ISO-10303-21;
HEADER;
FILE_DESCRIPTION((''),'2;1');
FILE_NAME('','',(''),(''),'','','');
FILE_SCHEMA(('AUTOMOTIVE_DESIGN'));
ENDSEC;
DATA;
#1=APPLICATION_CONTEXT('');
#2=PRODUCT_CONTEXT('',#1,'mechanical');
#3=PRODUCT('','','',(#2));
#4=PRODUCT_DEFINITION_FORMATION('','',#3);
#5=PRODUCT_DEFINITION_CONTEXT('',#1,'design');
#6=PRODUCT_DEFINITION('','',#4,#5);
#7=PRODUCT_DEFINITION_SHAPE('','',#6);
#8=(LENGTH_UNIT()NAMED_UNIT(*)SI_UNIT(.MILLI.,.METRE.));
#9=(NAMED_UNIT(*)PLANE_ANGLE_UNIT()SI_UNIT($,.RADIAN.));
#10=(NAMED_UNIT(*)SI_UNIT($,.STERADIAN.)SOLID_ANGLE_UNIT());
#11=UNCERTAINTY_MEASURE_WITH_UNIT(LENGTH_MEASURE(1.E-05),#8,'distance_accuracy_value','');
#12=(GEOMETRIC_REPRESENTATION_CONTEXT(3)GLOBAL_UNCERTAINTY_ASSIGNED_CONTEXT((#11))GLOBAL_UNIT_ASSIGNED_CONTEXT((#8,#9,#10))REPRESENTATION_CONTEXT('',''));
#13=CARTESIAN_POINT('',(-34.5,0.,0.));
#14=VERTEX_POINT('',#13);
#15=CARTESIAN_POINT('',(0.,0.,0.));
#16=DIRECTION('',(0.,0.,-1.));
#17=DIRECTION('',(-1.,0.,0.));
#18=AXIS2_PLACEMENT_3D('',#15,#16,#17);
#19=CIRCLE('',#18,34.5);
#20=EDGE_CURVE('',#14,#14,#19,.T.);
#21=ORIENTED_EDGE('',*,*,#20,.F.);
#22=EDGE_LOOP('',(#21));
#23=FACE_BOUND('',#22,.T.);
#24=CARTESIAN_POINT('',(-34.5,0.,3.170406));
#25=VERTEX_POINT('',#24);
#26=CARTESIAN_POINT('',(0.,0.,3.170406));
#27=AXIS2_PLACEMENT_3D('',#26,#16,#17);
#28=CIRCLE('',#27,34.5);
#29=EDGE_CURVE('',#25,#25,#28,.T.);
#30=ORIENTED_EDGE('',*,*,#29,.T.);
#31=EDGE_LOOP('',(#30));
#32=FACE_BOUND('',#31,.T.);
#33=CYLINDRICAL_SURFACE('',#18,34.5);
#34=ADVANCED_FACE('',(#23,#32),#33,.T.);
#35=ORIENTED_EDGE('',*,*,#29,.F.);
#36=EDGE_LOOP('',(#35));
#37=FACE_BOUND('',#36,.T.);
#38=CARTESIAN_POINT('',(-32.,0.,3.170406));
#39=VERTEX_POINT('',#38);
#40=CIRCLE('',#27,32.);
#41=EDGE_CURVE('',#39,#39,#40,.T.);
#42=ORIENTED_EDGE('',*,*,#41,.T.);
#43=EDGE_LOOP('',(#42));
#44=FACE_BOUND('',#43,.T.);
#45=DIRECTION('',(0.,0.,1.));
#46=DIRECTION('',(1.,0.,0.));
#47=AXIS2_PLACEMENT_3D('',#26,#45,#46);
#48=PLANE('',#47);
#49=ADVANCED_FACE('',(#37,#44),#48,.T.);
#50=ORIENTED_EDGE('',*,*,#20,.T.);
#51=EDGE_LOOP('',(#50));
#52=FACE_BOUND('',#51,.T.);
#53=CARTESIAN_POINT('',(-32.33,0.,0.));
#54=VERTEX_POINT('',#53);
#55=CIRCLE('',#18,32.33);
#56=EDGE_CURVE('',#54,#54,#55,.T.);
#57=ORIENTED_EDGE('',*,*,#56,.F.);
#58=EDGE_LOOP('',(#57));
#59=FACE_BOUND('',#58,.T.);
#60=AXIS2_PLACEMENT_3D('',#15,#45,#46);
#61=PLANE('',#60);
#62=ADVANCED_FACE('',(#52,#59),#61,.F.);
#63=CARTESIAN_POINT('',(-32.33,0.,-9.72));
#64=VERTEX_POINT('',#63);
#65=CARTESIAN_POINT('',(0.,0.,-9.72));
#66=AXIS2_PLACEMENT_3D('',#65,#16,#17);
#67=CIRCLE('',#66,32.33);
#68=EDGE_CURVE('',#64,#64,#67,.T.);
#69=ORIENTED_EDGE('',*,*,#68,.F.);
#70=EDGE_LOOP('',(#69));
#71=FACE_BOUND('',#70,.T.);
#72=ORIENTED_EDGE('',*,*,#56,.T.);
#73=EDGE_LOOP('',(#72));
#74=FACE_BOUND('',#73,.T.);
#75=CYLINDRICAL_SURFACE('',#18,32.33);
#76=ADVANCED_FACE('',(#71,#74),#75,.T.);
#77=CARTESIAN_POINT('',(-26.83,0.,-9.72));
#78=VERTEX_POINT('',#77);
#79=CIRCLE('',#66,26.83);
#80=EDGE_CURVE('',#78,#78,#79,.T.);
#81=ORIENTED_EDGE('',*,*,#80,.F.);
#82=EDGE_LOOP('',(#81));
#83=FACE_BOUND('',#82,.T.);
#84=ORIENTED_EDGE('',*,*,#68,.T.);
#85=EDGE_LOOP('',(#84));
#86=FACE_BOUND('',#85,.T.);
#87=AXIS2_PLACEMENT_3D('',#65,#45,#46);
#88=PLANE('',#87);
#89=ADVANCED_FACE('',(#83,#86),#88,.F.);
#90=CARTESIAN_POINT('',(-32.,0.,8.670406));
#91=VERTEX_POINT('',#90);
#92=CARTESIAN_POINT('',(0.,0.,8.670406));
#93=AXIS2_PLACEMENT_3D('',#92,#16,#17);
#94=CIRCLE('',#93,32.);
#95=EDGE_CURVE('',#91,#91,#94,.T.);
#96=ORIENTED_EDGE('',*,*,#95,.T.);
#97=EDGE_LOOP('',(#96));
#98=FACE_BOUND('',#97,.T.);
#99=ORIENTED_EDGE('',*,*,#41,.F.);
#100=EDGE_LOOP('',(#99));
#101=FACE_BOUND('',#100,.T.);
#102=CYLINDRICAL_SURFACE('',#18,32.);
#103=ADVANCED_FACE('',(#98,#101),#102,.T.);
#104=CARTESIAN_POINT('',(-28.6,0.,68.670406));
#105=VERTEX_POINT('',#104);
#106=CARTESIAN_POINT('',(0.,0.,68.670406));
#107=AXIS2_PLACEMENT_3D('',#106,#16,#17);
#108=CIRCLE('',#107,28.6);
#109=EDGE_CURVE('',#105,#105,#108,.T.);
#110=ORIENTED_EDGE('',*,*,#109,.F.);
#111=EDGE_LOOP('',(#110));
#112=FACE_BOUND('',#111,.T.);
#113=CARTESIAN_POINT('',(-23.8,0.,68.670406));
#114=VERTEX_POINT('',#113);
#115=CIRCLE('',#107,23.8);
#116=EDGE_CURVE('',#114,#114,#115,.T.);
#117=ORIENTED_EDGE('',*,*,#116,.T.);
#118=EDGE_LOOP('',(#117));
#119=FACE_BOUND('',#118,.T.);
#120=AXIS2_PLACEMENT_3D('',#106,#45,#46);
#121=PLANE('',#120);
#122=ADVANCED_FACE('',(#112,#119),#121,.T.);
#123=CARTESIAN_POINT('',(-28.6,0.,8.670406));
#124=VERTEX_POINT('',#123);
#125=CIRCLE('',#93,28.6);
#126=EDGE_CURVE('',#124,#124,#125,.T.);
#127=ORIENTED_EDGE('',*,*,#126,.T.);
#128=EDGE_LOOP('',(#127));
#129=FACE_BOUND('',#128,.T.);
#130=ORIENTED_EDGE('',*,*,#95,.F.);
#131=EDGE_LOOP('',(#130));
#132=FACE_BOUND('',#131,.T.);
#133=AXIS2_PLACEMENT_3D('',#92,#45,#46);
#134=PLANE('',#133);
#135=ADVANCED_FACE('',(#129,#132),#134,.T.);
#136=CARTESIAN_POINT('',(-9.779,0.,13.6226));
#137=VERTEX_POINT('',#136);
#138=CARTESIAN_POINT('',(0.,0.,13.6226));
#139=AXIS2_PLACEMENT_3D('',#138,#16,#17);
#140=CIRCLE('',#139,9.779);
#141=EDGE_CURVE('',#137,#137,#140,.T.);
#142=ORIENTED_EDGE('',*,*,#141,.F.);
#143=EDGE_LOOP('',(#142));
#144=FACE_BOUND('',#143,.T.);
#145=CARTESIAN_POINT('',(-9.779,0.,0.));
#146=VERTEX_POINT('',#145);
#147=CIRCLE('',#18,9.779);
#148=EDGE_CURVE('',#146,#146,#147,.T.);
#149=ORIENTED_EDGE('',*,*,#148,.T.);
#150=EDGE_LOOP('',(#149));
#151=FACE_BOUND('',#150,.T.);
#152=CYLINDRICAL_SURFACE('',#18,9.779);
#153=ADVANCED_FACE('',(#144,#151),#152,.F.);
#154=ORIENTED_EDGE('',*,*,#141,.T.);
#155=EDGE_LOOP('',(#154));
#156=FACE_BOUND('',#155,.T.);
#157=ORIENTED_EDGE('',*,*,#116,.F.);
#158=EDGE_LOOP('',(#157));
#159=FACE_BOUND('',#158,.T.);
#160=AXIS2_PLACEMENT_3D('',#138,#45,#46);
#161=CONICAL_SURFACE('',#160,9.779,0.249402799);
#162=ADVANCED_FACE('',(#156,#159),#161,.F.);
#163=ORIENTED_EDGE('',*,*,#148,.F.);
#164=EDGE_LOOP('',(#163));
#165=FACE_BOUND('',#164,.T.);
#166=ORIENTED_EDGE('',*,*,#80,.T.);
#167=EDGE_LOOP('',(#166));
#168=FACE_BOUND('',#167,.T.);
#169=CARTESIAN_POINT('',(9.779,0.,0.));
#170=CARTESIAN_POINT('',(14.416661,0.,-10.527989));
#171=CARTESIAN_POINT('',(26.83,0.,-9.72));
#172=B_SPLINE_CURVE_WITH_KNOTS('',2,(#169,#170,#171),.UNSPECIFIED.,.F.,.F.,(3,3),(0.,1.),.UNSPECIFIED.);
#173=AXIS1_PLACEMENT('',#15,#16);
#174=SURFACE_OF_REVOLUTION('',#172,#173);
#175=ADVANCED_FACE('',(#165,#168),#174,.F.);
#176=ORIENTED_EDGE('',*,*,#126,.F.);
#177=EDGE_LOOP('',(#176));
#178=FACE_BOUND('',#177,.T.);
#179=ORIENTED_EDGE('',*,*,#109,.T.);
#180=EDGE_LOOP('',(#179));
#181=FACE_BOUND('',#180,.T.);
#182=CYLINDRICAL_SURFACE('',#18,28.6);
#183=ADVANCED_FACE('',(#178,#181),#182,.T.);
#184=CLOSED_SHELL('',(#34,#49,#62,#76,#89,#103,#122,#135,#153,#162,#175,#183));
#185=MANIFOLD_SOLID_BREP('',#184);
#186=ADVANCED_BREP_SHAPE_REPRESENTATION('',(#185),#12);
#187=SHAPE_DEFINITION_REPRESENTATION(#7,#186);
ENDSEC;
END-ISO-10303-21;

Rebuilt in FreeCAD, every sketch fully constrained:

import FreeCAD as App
import Part
import Sketcher
from FreeCAD import Vector

doc = App.newDocument("Part")
params = doc.addObject("Spreadsheet::Sheet", "Params")
for row, (alias, value) in enumerate([
    ("sketch1_height", "60 mm"),
    ("sketch1_width", "4.8 mm"),
    ("sketch1_width2", "3.4 mm"),
    ("sketch1_width3", "2.5 mm"),
    ("sketch1_width4", "5.5 mm"),
    ("revolution_angle", "360 deg"),
], start=1):
    params.set(f"A{row}", alias)
    params.set(f"B{row}", "=" + value)
    params.setAlias(f"B{row}", alias)

body = doc.addObject("PartDesign::Body", "Body")

# Sketch on XZ plane
sketch1 = body.newObject("Sketcher::SketchObject", "Sketch")
sketch1.AttachmentSupport = (doc.getObject("XZ_Plane"), [""])
sketch1.MapMode = "FlatFace"
sketch1.addGeometry(Part.BSplineCurve([Vector(9.779, 0, 0), Vector(14.416661, -10.527989, 0), Vector(26.83, -9.72, 0)], [3, 3], [0, 1], False, 2, [1, 1, 1], False), False)
sketch1.addGeometry(Part.LineSegment(Vector(9.779, 0, 0), Vector(9.779, 13.6226, 0)), False)
sketch1.addGeometry(Part.LineSegment(Vector(9.779, 13.6226, 0), Vector(23.8, 68.670406, 0)), False)
sketch1.addGeometry(Part.LineSegment(Vector(23.8, 68.670406, 0), Vector(28.6, 68.670406, 0)), False)
sketch1.addGeometry(Part.LineSegment(Vector(28.6, 68.670406, 0), Vector(28.6, 8.670406, 0)), False)
sketch1.addGeometry(Part.LineSegment(Vector(28.6, 8.670406, 0), Vector(32, 8.670406, 0)), False)
sketch1.addGeometry(Part.LineSegment(Vector(32, 8.670406, 0), Vector(32, 3.170406, 0)), False)
sketch1.addGeometry(Part.LineSegment(Vector(32, 3.170406, 0), Vector(34.5, 3.170406, 0)), False)
sketch1.addGeometry(Part.LineSegment(Vector(34.5, 3.170406, 0), Vector(34.5, 0, 0)), False)
sketch1.addGeometry(Part.LineSegment(Vector(34.5, 0, 0), Vector(32.33, 0, 0)), False)
sketch1.addGeometry(Part.LineSegment(Vector(32.33, 0, 0), Vector(32.33, -9.72, 0)), False)
sketch1.addGeometry(Part.LineSegment(Vector(32.33, -9.72, 0), Vector(26.83, -9.72, 0)), False)
sketch1.addConstraint(Sketcher.Constraint("Block", 0))
sketch1.addConstraint(Sketcher.Constraint("Coincident", 0, 1, 1, 1))
sketch1.addConstraint(Sketcher.Constraint("Coincident", 1, 2, 2, 1))
sketch1.addConstraint(Sketcher.Constraint("Coincident", 2, 2, 3, 1))
sketch1.addConstraint(Sketcher.Constraint("Coincident", 3, 2, 4, 1))
sketch1.addConstraint(Sketcher.Constraint("Coincident", 4, 2, 5, 1))
sketch1.addConstraint(Sketcher.Constraint("Coincident", 5, 2, 6, 1))
sketch1.addConstraint(Sketcher.Constraint("Coincident", 6, 2, 7, 1))
sketch1.addConstraint(Sketcher.Constraint("Coincident", 7, 2, 8, 1))
sketch1.addConstraint(Sketcher.Constraint("Coincident", 8, 2, 9, 1))
sketch1.addConstraint(Sketcher.Constraint("Coincident", 9, 2, 10, 1))
sketch1.addConstraint(Sketcher.Constraint("Coincident", 10, 2, 11, 1))
sketch1.addConstraint(Sketcher.Constraint("Coincident", 11, 2, 0, 2))
sketch1.addConstraint(Sketcher.Constraint("Vertical", 1))
sketch1.addConstraint(Sketcher.Constraint("Horizontal", 3))
sketch1.addConstraint(Sketcher.Constraint("Vertical", 4))
sketch1.addConstraint(Sketcher.Constraint("Horizontal", 5))
sketch1.addConstraint(Sketcher.Constraint("Vertical", 6))
sketch1.addConstraint(Sketcher.Constraint("Horizontal", 7))
sketch1.addConstraint(Sketcher.Constraint("Vertical", 8))
sketch1.addConstraint(Sketcher.Constraint("Horizontal", 9))
sketch1.addConstraint(Sketcher.Constraint("Vertical", 10))
sketch1.addConstraint(Sketcher.Constraint("Horizontal", 11))
sketch1.addConstraint(Sketcher.Constraint("PointOnObject", 8, 2, -1))
sketch1.addConstraint(Sketcher.Constraint("Equal", 11, 6))
sketch1.addConstraint(Sketcher.Constraint("DistanceY", 4, 2, 4, 1, 60.0))
sketch1.addConstraint(Sketcher.Constraint("DistanceX", 3, 1, 3, 2, 4.8))
sketch1.addConstraint(Sketcher.Constraint("DistanceX", 5, 1, 5, 2, 3.4))
sketch1.addConstraint(Sketcher.Constraint("DistanceX", 7, 1, 7, 2, 2.5))
sketch1.addConstraint(Sketcher.Constraint("DistanceX", 11, 2, 11, 1, 5.5))
sketch1.addConstraint(Sketcher.Constraint("DistanceX", -1, 1, 5, 2, 32.0))
sketch1.addConstraint(Sketcher.Constraint("DistanceY", 1, 1, 1, 2, 13.6226))
sketch1.addConstraint(Sketcher.Constraint("DistanceY", 8, 2, 8, 1, 3.170406))
sketch1.setExpression("Constraints[25]", "Params.sketch1_height")
sketch1.setExpression("Constraints[26]", "Params.sketch1_width")
sketch1.setExpression("Constraints[27]", "Params.sketch1_width2")
sketch1.setExpression("Constraints[28]", "Params.sketch1_width3")
sketch1.setExpression("Constraints[29]", "Params.sketch1_width4")
revolution = body.newObject("PartDesign::Revolution", "Revolution")
revolution.Profile = sketch1
revolution.ReferenceAxis = (sketch1, ["V_Axis"])
revolution.setExpression("Angle", "Params.revolution_angle")

doc.recompute()
